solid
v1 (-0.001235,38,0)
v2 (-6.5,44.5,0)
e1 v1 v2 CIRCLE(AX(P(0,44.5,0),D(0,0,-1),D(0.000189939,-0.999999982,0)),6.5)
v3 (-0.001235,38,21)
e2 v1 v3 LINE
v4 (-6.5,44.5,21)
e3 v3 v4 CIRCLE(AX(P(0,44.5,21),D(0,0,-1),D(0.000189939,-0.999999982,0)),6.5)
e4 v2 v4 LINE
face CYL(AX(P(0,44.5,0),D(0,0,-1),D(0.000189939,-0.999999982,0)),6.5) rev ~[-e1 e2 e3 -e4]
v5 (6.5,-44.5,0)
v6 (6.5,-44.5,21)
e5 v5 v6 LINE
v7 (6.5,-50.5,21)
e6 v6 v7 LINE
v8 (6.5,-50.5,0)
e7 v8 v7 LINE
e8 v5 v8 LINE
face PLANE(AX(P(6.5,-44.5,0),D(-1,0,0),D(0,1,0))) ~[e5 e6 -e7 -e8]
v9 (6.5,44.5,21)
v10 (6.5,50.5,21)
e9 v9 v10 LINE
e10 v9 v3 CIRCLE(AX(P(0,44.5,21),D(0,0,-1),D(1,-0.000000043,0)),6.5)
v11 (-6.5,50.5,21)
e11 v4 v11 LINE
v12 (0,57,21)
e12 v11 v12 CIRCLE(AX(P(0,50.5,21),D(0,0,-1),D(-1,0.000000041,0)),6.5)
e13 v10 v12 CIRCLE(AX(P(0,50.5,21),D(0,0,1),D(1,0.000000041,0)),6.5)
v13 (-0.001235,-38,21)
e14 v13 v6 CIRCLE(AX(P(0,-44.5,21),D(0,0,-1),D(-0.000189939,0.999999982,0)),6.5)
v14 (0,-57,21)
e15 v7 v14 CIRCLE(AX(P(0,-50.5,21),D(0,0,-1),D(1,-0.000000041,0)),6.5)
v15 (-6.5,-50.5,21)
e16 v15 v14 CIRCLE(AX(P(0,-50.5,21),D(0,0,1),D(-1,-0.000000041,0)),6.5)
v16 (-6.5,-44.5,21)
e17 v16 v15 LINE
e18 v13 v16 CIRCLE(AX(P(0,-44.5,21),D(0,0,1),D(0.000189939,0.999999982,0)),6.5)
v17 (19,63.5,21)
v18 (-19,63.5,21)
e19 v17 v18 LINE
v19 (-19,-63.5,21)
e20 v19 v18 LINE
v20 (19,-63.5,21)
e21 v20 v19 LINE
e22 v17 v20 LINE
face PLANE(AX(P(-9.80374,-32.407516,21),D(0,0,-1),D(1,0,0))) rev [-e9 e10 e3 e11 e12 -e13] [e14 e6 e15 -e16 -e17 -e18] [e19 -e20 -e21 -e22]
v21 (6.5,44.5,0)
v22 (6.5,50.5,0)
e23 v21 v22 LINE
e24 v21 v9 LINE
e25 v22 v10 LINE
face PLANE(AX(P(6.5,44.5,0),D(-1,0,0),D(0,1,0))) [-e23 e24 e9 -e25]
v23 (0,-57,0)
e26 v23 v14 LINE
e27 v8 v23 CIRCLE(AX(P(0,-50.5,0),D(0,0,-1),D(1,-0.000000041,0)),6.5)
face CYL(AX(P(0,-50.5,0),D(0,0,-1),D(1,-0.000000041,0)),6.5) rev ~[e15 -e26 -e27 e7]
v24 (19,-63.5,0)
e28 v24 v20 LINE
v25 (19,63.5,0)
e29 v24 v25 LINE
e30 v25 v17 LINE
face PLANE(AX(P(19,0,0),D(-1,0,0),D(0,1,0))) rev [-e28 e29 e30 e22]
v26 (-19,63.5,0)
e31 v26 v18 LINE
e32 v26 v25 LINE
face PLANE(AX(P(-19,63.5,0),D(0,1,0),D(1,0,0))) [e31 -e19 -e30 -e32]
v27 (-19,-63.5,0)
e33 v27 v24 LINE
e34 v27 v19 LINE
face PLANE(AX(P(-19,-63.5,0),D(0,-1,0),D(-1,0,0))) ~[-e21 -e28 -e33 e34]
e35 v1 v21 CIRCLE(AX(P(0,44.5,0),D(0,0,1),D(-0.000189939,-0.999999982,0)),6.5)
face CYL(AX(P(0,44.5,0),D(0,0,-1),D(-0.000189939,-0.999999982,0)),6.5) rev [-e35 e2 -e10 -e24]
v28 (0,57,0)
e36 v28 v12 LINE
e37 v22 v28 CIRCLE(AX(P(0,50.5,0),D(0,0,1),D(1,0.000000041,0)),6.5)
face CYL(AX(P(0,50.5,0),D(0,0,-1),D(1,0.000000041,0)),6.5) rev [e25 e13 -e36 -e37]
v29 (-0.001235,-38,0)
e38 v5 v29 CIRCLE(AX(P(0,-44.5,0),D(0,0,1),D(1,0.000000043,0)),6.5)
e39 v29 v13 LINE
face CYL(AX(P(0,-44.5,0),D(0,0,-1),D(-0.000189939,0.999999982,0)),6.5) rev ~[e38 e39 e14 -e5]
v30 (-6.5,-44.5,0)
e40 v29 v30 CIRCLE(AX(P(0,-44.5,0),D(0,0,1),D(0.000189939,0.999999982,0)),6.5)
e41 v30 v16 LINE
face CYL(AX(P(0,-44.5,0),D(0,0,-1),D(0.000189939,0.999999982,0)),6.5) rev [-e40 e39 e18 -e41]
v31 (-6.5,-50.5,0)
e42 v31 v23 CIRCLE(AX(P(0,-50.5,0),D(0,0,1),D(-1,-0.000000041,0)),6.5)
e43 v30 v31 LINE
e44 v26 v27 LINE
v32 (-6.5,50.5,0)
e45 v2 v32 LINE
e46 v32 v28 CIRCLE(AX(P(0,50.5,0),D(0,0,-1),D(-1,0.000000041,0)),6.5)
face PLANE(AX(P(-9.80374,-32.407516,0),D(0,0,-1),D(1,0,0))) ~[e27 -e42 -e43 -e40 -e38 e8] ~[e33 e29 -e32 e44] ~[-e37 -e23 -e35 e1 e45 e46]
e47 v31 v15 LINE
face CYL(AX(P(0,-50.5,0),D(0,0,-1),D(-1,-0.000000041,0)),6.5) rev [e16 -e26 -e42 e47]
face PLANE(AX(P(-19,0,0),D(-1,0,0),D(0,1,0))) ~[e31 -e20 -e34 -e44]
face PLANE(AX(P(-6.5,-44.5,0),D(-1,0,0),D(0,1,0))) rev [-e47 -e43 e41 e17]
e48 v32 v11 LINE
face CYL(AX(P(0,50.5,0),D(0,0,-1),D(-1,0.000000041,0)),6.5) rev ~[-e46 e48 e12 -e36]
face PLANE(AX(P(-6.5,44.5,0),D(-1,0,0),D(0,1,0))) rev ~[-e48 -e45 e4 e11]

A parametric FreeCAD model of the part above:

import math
import FreeCAD as App
import Part
import Sketcher

V = App.Vector
Q = App.Units.Quantity

doc = App.newDocument("Part")
body = doc.addObject("PartDesign::Body", "Body")

sketch1 = body.newObject("Sketcher::SketchObject", "Sketch")
sketch1.AttachmentSupport = (doc.getObject("XY_Plane"), [""])
sketch1.MapMode = "FlatFace"
sketch1.addGeometry([
    Part.LineSegment(V(0, 0, 0), V(19, 0, 0)),
    Part.LineSegment(V(19, 0, 0), V(19, 63.5, 0)),
    Part.LineSegment(V(19, 63.5, 0), V(0, 63.5, 0)),
    Part.LineSegment(V(0, 63.5, 0), V(0, 57, 0)),
    Part.ArcOfCircle(Part.Circle(V(0, 50.5, 0), V(0, 0, 1), 6.5), math.radians(0.000002), math.radians(89.999998)),
    Part.LineSegment(V(6.5, 50.5, 0), V(6.5, 44.5, 0)),
    Part.ArcOfCircle(Part.Circle(V(0, 44.5, 0), V(0, 0, 1), 6.5), math.radians(-90.010883), math.radians(-0.000002)),
    Part.LineSegment(V(-0.001235, 38, 0), V(0, 0, 0)),
], False)
sketch1.addConstraint([
    Sketcher.Constraint("Coincident", 0, 2, 1, 1),
    Sketcher.Constraint("Coincident", 1, 2, 2, 1),
    Sketcher.Constraint("Coincident", 2, 2, 3, 1),
    Sketcher.Constraint("Coincident", 3, 2, 4, 2),
    Sketcher.Constraint("Tangent", 4, 1, 5, 1),
    Sketcher.Constraint("Tangent", 5, 2, 6, 2),
    Sketcher.Constraint("Coincident", 6, 1, 7, 1),
    Sketcher.Constraint("Coincident", 7, 2, 0, 1),
    Sketcher.Constraint("Horizontal", 0),
    Sketcher.Constraint("Vertical", 1),
    Sketcher.Constraint("Horizontal", 2),
    Sketcher.Constraint("Vertical", 3),
    Sketcher.Constraint("Vertical", 5),
    Sketcher.Constraint("Coincident", 7, 2, -1, 1),
    Sketcher.Constraint("Equal", 4, 6),
    Sketcher.Constraint("PointOnObject", 4, 3, -2),
    Sketcher.Constraint("PointOnObject", 2, 2, -2),
    Sketcher.Constraint("Radius", 4, Q("6.5 mm")),
    Sketcher.Constraint("DistanceX", 0, 1, 0, 2, Q("19 mm")),
    Sketcher.Constraint("DistanceY", 5, 2, 5, 1, Q("6 mm")),
    Sketcher.Constraint("Distance", 7, Q("38 mm")),
    Sketcher.Constraint("DistanceY", 1, 1, 1, 2, Q("63.5 mm")),
    Sketcher.Constraint("DistanceX", 6, 1, -1, 1, Q("0.001235 mm")),
])
pad1 = body.newObject("PartDesign::Pad", "Pad")
pad1.Profile = sketch1
pad1.Length = 21

sketch2 = body.newObject("Sketcher::SketchObject", "Sketch001")
sketch2.AttachmentSupport = (doc.getObject("XY_Plane"), [""])
sketch2.MapMode = "FlatFace"
sketch2.addGeometry([
    Part.LineSegment(V(0, 0, 0), V(-19, 0, 0)),
    Part.LineSegment(V(-19, 0, 0), V(-19, 63.5, 0)),
    Part.LineSegment(V(-19, 63.5, 0), V(0, 63.5, 0)),
    Part.LineSegment(V(0, 63.5, 0), V(0, 57, 0)),
    Part.ArcOfCircle(Part.Circle(V(0, 50.5, 0), V(0, 0, 1), 6.5), math.radians(90.000002), math.radians(179.999998)),
    Part.LineSegment(V(-6.5, 50.5, 0), V(-6.5, 44.5, 0)),
    Part.ArcOfCircle(Part.Circle(V(0, 44.5, 0), V(0, 0, 1), 6.5), math.radians(-179.999998), math.radians(-89.989117)),
    Part.LineSegment(V(0.001235, 38, 0), V(0, 0, 0)),
], False)
sketch2.addConstraint([
    Sketcher.Constraint("Coincident", 0, 2, 1, 1),
    Sketcher.Constraint("Coincident", 1, 2, 2, 1),
    Sketcher.Constraint("Coincident", 2, 2, 3, 1),
    Sketcher.Constraint("Coincident", 3, 2, 4, 1),
    Sketcher.Constraint("Tangent", 4, 2, 5, 1),
    Sketcher.Constraint("Tangent", 5, 2, 6, 1),
    Sketcher.Constraint("Coincident", 6, 2, 7, 1),
    Sketcher.Constraint("Coincident", 7, 2, 0, 1),
    Sketcher.Constraint("Horizontal", 0),
    Sketcher.Constraint("Vertical", 1),
    Sketcher.Constraint("Horizontal", 2),
    Sketcher.Constraint("Vertical", 3),
    Sketcher.Constraint("Vertical", 5),
    Sketcher.Constraint("Coincident", 7, 2, -1, 1),
    Sketcher.Constraint("Equal", 4, 6),
    Sketcher.Constraint("PointOnObject", 4, 3, -2),
    Sketcher.Constraint("PointOnObject", 2, 2, -2),
    Sketcher.Constraint("Radius", 4, Q("6.5 mm")),
    Sketcher.Constraint("DistanceX", 0, 2, 0, 1, Q("19 mm")),
    Sketcher.Constraint("DistanceY", 5, 2, 5, 1, Q("6 mm")),
    Sketcher.Constraint("Distance", 7, Q("38 mm")),
    Sketcher.Constraint("DistanceY", 1, 1, 1, 2, Q("63.5 mm")),
    Sketcher.Constraint("DistanceX", -1, 1, 6, 2, Q("0.001235 mm")),
])
pad2 = body.newObject("PartDesign::Pad", "Pad001")
pad2.Profile = sketch2
pad2.Length = 21
doc.recompute()

mirrored = body.newObject("PartDesign::Mirrored", "Mirrored")
mirrored.Originals = [pad1, pad2]
mirrored.MirrorPlane = (doc.getObject("XZ_Plane"), [""])
body.Tip = mirrored

doc.recompute()
